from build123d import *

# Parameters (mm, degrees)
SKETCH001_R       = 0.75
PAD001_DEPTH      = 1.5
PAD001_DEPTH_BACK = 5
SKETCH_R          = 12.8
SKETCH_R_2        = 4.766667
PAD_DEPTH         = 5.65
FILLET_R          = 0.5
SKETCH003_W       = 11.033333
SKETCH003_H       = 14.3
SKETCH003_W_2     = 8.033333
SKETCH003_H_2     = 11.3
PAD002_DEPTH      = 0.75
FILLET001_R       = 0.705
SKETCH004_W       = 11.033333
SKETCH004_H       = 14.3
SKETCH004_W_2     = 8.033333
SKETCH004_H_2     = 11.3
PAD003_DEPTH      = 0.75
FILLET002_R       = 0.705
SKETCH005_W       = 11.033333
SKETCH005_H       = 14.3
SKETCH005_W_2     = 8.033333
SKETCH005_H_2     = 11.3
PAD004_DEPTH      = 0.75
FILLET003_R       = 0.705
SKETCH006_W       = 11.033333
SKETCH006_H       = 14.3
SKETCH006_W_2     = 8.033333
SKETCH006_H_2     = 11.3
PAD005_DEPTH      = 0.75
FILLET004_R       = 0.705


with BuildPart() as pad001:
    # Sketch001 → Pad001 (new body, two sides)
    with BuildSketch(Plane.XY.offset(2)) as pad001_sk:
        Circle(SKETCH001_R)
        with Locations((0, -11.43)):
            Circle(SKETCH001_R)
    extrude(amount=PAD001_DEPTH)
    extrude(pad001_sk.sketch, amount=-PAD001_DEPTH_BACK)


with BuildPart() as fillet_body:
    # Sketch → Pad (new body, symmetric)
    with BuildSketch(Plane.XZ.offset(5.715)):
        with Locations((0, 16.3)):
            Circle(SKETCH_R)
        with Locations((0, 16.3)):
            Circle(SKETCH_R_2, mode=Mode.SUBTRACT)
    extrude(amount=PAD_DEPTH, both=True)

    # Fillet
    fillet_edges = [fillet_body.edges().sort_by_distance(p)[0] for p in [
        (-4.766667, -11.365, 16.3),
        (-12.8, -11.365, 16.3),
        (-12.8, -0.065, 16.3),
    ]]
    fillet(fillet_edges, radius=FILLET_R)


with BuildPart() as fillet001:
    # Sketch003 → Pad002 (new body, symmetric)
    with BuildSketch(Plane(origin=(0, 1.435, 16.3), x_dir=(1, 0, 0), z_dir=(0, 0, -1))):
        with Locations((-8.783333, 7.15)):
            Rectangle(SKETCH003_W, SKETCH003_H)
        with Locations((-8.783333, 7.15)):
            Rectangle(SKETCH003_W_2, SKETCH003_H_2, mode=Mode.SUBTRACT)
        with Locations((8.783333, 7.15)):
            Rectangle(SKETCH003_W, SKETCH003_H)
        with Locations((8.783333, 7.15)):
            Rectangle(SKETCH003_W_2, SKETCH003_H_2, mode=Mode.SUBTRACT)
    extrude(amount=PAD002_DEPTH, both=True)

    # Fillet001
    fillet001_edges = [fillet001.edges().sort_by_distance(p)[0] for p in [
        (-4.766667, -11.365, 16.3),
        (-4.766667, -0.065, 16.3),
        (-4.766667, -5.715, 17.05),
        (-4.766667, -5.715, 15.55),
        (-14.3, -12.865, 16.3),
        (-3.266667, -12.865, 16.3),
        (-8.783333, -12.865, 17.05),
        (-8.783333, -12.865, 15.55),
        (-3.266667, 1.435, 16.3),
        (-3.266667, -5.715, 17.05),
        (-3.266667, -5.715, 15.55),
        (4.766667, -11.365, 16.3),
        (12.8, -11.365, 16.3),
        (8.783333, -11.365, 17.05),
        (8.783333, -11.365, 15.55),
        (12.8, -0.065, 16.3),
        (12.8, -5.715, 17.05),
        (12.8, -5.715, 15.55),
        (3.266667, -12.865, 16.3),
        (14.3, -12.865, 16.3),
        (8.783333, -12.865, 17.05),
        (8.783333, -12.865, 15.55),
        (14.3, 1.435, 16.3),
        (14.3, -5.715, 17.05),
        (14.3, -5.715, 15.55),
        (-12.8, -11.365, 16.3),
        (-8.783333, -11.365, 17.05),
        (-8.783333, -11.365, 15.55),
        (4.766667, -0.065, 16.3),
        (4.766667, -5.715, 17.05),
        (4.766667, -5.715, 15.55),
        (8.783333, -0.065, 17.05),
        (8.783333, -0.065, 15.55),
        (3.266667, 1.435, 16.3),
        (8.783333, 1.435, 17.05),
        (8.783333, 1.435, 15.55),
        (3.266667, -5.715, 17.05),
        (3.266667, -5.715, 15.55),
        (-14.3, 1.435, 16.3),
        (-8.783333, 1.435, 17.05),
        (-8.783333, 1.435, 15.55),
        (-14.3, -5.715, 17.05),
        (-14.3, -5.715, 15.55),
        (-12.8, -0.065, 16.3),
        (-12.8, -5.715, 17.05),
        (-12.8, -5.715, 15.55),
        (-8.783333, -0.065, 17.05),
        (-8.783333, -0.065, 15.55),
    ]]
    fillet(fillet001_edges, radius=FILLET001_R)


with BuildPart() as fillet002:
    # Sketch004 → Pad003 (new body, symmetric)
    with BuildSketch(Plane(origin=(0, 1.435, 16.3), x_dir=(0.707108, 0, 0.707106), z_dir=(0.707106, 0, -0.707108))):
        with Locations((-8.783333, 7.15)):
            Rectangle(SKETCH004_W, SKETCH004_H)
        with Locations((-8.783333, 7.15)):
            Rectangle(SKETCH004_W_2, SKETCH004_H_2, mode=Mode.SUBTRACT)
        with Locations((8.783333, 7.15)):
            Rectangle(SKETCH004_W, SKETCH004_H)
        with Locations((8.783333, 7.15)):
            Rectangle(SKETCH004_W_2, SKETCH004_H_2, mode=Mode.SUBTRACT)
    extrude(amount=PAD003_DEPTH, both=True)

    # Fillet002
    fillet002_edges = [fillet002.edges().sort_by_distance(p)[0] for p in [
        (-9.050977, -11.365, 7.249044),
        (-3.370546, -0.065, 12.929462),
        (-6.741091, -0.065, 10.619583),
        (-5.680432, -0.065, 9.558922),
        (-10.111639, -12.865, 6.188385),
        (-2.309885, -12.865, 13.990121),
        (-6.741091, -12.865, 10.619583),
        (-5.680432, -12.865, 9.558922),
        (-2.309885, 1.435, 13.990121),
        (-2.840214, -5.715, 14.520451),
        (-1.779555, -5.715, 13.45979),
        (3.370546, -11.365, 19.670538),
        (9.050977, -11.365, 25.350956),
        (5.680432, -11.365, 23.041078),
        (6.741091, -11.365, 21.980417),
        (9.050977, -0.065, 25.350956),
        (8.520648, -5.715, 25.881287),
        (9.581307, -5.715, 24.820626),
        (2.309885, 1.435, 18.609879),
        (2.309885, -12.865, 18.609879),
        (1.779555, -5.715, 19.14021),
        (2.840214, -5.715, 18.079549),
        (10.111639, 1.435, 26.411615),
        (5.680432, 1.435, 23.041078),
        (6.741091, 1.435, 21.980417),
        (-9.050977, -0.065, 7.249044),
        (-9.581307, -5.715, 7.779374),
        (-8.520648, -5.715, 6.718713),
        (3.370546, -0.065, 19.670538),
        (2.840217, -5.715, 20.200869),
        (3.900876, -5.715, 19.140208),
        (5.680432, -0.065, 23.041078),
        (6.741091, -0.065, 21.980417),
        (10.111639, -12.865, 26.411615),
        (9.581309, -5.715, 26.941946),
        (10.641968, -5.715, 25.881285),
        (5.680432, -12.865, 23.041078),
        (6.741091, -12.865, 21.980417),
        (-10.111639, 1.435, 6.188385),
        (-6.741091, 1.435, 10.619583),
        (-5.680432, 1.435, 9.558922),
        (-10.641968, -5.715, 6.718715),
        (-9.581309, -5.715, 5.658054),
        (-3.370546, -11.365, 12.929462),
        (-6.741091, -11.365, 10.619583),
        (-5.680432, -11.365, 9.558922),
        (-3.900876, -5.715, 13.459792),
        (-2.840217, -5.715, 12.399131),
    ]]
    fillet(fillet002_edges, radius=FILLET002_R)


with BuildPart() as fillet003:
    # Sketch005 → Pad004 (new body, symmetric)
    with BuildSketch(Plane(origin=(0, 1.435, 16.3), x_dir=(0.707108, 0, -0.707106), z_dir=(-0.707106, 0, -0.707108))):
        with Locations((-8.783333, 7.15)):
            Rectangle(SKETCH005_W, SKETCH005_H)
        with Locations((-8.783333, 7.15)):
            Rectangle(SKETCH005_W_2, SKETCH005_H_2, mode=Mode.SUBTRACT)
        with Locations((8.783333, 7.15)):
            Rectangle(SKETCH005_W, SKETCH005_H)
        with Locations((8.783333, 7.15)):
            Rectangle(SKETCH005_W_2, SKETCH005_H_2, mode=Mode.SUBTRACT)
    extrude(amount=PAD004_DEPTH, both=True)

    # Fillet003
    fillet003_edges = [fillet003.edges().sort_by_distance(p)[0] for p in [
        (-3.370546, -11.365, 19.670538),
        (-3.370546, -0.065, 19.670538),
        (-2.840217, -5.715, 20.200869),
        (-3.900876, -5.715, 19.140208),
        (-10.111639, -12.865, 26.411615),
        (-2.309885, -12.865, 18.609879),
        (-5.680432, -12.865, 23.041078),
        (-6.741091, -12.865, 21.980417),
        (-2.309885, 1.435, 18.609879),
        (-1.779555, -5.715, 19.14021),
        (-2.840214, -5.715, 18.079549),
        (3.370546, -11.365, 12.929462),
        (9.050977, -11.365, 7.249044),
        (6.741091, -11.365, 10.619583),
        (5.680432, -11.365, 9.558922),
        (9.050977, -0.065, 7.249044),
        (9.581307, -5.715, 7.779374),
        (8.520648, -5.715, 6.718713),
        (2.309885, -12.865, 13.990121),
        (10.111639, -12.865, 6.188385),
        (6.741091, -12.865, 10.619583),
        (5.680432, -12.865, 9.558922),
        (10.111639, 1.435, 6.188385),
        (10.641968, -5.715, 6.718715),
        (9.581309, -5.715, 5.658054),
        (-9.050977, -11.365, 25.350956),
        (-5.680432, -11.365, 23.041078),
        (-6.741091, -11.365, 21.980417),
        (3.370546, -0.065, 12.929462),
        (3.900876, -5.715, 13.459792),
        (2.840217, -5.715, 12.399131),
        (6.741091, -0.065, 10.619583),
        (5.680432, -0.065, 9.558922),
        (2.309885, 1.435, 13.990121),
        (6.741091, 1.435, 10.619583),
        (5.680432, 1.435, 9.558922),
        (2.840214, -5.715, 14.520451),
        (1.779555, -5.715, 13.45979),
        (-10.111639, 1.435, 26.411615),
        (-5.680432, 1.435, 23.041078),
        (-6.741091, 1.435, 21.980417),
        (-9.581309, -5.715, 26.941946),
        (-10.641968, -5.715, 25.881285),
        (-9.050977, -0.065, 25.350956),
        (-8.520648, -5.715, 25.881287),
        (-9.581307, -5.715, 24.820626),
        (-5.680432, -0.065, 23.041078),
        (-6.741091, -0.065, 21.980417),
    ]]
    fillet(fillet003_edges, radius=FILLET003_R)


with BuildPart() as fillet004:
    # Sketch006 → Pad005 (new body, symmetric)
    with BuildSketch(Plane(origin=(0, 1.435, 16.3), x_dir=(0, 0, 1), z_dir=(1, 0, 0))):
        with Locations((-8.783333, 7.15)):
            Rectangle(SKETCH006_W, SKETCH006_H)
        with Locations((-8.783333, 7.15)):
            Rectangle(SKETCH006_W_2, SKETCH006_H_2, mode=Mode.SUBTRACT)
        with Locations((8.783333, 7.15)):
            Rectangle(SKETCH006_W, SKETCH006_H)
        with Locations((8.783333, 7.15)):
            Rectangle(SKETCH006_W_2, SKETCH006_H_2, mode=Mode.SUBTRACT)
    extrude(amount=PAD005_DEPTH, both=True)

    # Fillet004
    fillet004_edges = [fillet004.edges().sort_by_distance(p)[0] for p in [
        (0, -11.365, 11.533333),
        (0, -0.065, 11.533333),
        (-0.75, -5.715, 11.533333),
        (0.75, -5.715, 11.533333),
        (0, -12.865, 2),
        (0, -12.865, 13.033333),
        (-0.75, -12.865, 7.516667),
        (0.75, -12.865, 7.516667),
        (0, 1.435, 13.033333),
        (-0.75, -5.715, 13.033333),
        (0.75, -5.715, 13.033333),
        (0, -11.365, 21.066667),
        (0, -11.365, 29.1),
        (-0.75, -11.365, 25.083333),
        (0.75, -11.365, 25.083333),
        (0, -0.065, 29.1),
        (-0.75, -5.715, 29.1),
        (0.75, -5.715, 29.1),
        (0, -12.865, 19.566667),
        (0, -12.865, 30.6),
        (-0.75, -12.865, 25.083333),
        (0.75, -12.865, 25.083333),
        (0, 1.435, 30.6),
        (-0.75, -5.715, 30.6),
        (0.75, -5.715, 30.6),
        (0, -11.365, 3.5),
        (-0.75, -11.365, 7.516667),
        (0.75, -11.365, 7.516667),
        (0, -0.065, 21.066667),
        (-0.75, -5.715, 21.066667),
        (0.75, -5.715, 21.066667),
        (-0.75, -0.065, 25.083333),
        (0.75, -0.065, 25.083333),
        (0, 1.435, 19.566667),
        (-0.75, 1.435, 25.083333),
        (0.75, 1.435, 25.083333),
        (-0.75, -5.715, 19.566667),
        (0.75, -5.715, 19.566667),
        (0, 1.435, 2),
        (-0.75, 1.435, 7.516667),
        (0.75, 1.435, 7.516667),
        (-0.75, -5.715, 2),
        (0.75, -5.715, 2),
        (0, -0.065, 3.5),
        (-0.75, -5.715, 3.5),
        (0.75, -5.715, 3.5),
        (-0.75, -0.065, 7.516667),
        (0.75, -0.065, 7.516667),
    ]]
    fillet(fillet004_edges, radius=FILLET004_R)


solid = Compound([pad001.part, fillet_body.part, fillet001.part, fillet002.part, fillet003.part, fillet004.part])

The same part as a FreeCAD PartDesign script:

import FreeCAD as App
import Part
import Sketcher


def edges_at(feature, points):
    """Names of the edges that pass closest to the given points."""
    edges = feature.Shape.Edges
    near = lambda p: min(range(len(edges)), key=lambda i: edges[i].distToShape(Part.Vertex(*p))[0])
    return sorted({f"Edge{near(p) + 1}" for p in points})


def add_polygon(sketch, points):
    """Adds a closed chain of lines whose ends are joined by coincident constraints."""
    first, n = sketch.GeometryCount, len(points)
    for a, b in zip(points, points[1:] + points[:1]):
        sketch.addGeometry(Part.LineSegment(App.Vector(*a, 0), App.Vector(*b, 0)), False)
    for i in range(n):
        sketch.addConstraint(Sketcher.Constraint("Coincident", first + i, 2, first + (i + 1) % n, 1))

doc = App.newDocument("Part")
body = doc.addObject("PartDesign::Body", "Body")
body.AllowCompound = True

sketch1 = doc.addObject("Sketcher::SketchObject", "Sketch")
body.addObject(sketch1)
sketch1.AttachmentSupport = (doc.XY_Plane, [""])
sketch1.MapMode = "FlatFace"
sketch1.AttachmentOffset = App.Placement(App.Vector(0, 0, 2), App.Rotation())
sketch1.addGeometry(Part.Circle(App.Vector(0, 0, 0), App.Vector(0, 0, 1), 0.8), False)
sketch1.addGeometry(Part.Circle(App.Vector(0, -11.4, 0), App.Vector(0, 0, 1), 0.8), False)
sketch1.addConstraint(Sketcher.Constraint("Coincident", 0, 3, -1, 1))
sketch1.addConstraint(Sketcher.Constraint("Equal", 0, 1))
sketch1.addConstraint(Sketcher.Constraint("PointOnObject", 1, 3, -2))
sketch1.addConstraint(Sketcher.Constraint("Diameter", 0, 1.5))
sketch1.addConstraint(Sketcher.Constraint("DistanceY", 1, 3, -1, 1, 11.43))
pad1 = doc.addObject("PartDesign::Pad", "Pad")
body.addObject(pad1)
pad1.Profile = sketch1
pad1.Type = "TwoLengths"
pad1.Length = 1.5
pad1.Length2 = 5
body2 = doc.addObject("PartDesign::Body", "Body001")

sketch2 = doc.addObject("Sketcher::SketchObject", "Sketch001")
body2.addObject(sketch2)
sketch2.AttachmentSupport = (doc.getObject("XZ_Plane001"), [""])
sketch2.MapMode = "FlatFace"
sketch2.AttachmentOffset = App.Placement(App.Vector(0, 0, 5.715), App.Rotation())
sketch2.addGeometry(Part.Circle(App.Vector(0, 16.3, 0), App.Vector(0, 0, 1), 12.8), False)
sketch2.addGeometry(Part.Circle(App.Vector(0, 16.3, 0), App.Vector(0, 0, 1), 4.8), False)
sketch2.addConstraint(Sketcher.Constraint("Coincident", 1, 3, 0, 3))
sketch2.addConstraint(Sketcher.Constraint("PointOnObject", 0, 3, -2))
sketch2.addConstraint(Sketcher.Constraint("Diameter", 0, 25.6))
sketch2.addConstraint(Sketcher.Constraint("DistanceY", -1, 1, 0, 3, 16.3))
sketch2.addConstraint(Sketcher.Constraint("Diameter", 1, 9.533334))
pad2 = doc.addObject("PartDesign::Pad", "Pad001")
body2.addObject(pad2)
pad2.Profile = sketch2
pad2.Length = 11.3
pad2.Midplane = True
doc.recompute()

fillet = doc.addObject("PartDesign::Fillet", "Fillet")
body2.addObject(fillet)
fillet.Base = (pad2, edges_at(pad2, [(-4.767, -11.365, 16.3), (-12.8, -11.365, 16.3), (-12.8, -0.065, 16.3)]))
fillet.Radius = 0.5
body3 = doc.addObject("PartDesign::Body", "Body002")
body3.AllowCompound = True

sketch3 = doc.addObject("Sketcher::SketchObject", "Sketch002")
body3.addObject(sketch3)
sketch3.AttachmentSupport = (doc.getObject("XY_Plane002"), [""])
sketch3.MapMode = "FlatFace"
sketch3.AttachmentOffset = App.Placement(App.Vector(0, 0, 16.3), App.Rotation())
add_polygon(sketch3, [(-14, -13), (-14, 1), (-3, 1), (-3, -13)])
add_polygon(sketch3, [(-5, 0), (-13, 0), (-13, -11), (-5, -11)])
add_polygon(sketch3, [(3, -13), (3, 1), (14, 1), (14, -13)])
add_polygon(sketch3, [(13, 0), (5, 0), (5, -11), (13, -11)])
sketch3.addConstraint(Sketcher.Constraint("Vertical", 0))
sketch3.addConstraint(Sketcher.Constraint("Horizontal", 1))
sketch3.addConstraint(Sketcher.Constraint("Vertical", 2))
sketch3.addConstraint(Sketcher.Constraint("Horizontal", 3))
sketch3.addConstraint(Sketcher.Constraint("Horizontal", 4))
sketch3.addConstraint(Sketcher.Constraint("Vertical", 5))
sketch3.addConstraint(Sketcher.Constraint("Horizontal", 6))
sketch3.addConstraint(Sketcher.Constraint("Vertical", 7))
sketch3.addConstraint(Sketcher.Constraint("Vertical", 8))
sketch3.addConstraint(Sketcher.Constraint("Horizontal", 9))
sketch3.addConstraint(Sketcher.Constraint("Vertical", 10))
sketch3.addConstraint(Sketcher.Constraint("Horizontal", 11))
sketch3.addConstraint(Sketcher.Constraint("Horizontal", 12))
sketch3.addConstraint(Sketcher.Constraint("Vertical", 13))
sketch3.addConstraint(Sketcher.Constraint("Horizontal", 14))
sketch3.addConstraint(Sketcher.Constraint("Vertical", 15))
sketch3.addConstraint(Sketcher.Constraint("Symmetric", 1, 2, 8, 2, -2))
sketch3.addConstraint(Sketcher.Constraint("Symmetric", 3, 2, 10, 2, -2))
sketch3.addConstraint(Sketcher.Constraint("Symmetric", 7, 2, 12, 2, -2))
sketch3.addConstraint(Sketcher.Constraint("Symmetric", 5, 2, 14, 2, -2))
sketch3.addConstraint(Sketcher.Constraint("DistanceY", 0, 1, 0, 2, 14.3))
sketch3.addConstraint(Sketcher.Constraint("DistanceY", 5, 2, 5, 1, 11.3))
sketch3.addConstraint(Sketcher.Constraint("DistanceX", 0, 2, -1, 1, 14.3))
sketch3.addConstraint(Sketcher.Constraint("DistanceX", 4, 2, -1, 1, 12.8))
sketch3.addConstraint(Sketcher.Constraint("DistanceY", 4, 2, 0, 2, 1.5))
sketch3.addConstraint(Sketcher.Constraint("DistanceX", 6, 2, 2, 2, 1.5))
sketch3.addConstraint(Sketcher.Constraint("DistanceY", -1, 1, 0, 2, 1.435))
sketch3.addConstraint(Sketcher.Constraint("DistanceX", 1, 1, 1, 2, 11.033333))
pad3 = doc.addObject("PartDesign::Pad", "Pad002")
body3.addObject(pad3)
pad3.Profile = sketch3
pad3.Length = 1.5
pad3.Midplane = True
doc.recompute()

fillet2 = doc.addObject("PartDesign::Fillet", "Fillet001")
body3.addObject(fillet2)
fillet2.Base = (pad3, ["Edge1"])
fillet2.UseAllEdges = True
fillet2.Radius = 0.705
body4 = doc.addObject("PartDesign::Body", "Body003")
body4.AllowCompound = True

sketch4 = doc.addObject("Sketcher::SketchObject", "Sketch003")
body4.addObject(sketch4)
sketch4.Placement = App.Placement(App.Vector(0, 1.435, 16.3), App.Rotation(App.Vector(0.707107781, 0, 0.707105781), App.Vector(0, -0.999999999, 0), App.Vector(0.707105781, 0, -0.707107781), "ZXY"))
add_polygon(sketch4, [(-14, 14), (-14, 0), (-3, 0), (-3, 14)])
add_polygon(sketch4, [(-5, 1), (-13, 1), (-13, 13), (-5, 13)])
add_polygon(sketch4, [(3, 14), (3, 0), (14, 0), (14, 14)])
add_polygon(sketch4, [(13, 1), (5, 1), (5, 13), (13, 13)])
sketch4.addConstraint(Sketcher.Constraint("Vertical", 0))
sketch4.addConstraint(Sketcher.Constraint("Horizontal", 1))
sketch4.addConstraint(Sketcher.Constraint("Vertical", 2))
sketch4.addConstraint(Sketcher.Constraint("Horizontal", 3))
sketch4.addConstraint(Sketcher.Constraint("Horizontal", 4))
sketch4.addConstraint(Sketcher.Constraint("Vertical", 5))
sketch4.addConstraint(Sketcher.Constraint("Horizontal", 6))
sketch4.addConstraint(Sketcher.Constraint("Vertical", 7))
sketch4.addConstraint(Sketcher.Constraint("Vertical", 8))
sketch4.addConstraint(Sketcher.Constraint("Horizontal", 9))
sketch4.addConstraint(Sketcher.Constraint("Vertical", 10))
sketch4.addConstraint(Sketcher.Constraint("Horizontal", 11))
sketch4.addConstraint(Sketcher.Constraint("Horizontal", 12))
sketch4.addConstraint(Sketcher.Constraint("Vertical", 13))
sketch4.addConstraint(Sketcher.Constraint("Horizontal", 14))
sketch4.addConstraint(Sketcher.Constraint("Vertical", 15))
sketch4.addConstraint(Sketcher.Constraint("Symmetric", 1, 2, 8, 2, -1, 1))
sketch4.addConstraint(Sketcher.Constraint("Symmetric", 0, 2, 9, 2, -2))
sketch4.addConstraint(Sketcher.Constraint("Symmetric", 7, 2, 12, 2, -2))
sketch4.addConstraint(Sketcher.Constraint("Symmetric", 5, 2, 14, 2, -2))
sketch4.addConstraint(Sketcher.Constraint("Horizontal", 3, 2, 10, 2))
sketch4.addConstraint(Sketcher.Constraint("DistanceY", 0, 2, 0, 1, 14.3))
sketch4.addConstraint(Sketcher.Constraint("DistanceY", 5, 1, 5, 2, 11.3))
sketch4.addConstraint(Sketcher.Constraint("DistanceX", 0, 2, -1, 1, 14.299999))
sketch4.addConstraint(Sketcher.Constraint("DistanceX", 4, 2, -1, 1, 12.799999))
sketch4.addConstraint(Sketcher.Constraint("DistanceY", -1, 1, 4, 2, 1.5))
sketch4.addConstraint(Sketcher.Constraint("DistanceX", 6, 2, 2, 2, 1.5))
sketch4.addConstraint(Sketcher.Constraint("DistanceX", 1, 1, 1, 2, 11.033333))
pad4 = doc.addObject("PartDesign::Pad", "Pad003")
body4.addObject(pad4)
pad4.Profile = sketch4
pad4.Length = 1.5
pad4.Midplane = True
doc.recompute()

fillet3 = doc.addObject("PartDesign::Fillet", "Fillet002")
body4.addObject(fillet3)
fillet3.Base = (pad4, ["Edge1"])
fillet3.UseAllEdges = True
fillet3.Radius = 0.705
body5 = doc.addObject("PartDesign::Body", "Body004")
body5.AllowCompound = True

sketch5 = doc.addObject("Sketcher::SketchObject", "Sketch004")
body5.addObject(sketch5)
sketch5.Placement = App.Placement(App.Vector(0, 1.435, 16.3), App.Rotation(App.Vector(0.707107781, 0, -0.707105781), App.Vector(0, -0.999999999, 0), App.Vector(-0.707105781, 0, -0.707107781), "ZXY"))
add_polygon(sketch5, [(-14, 14), (-14, 0), (-3, 0), (-3, 14)])
add_polygon(sketch5, [(-5, 1), (-13, 1), (-13, 13), (-5, 13)])
add_polygon(sketch5, [(3, 14), (3, 0), (14, 0), (14, 14)])
add_polygon(sketch5, [(13, 1), (5, 1), (5, 13), (13, 13)])
sketch5.addConstraint(Sketcher.Constraint("Vertical", 0))
sketch5.addConstraint(Sketcher.Constraint("Horizontal", 1))
sketch5.addConstraint(Sketcher.Constraint("Vertical", 2))
sketch5.addConstraint(Sketcher.Constraint("Horizontal", 3))
sketch5.addConstraint(Sketcher.Constraint("Horizontal", 4))
sketch5.addConstraint(Sketcher.Constraint("Vertical", 5))
sketch5.addConstraint(Sketcher.Constraint("Horizontal", 6))
sketch5.addConstraint(Sketcher.Constraint("Vertical", 7))
sketch5.addConstraint(Sketcher.Constraint("Vertical", 8))
sketch5.addConstraint(Sketcher.Constraint("Horizontal", 9))
sketch5.addConstraint(Sketcher.Constraint("Vertical", 10))
sketch5.addConstraint(Sketcher.Constraint("Horizontal", 11))
sketch5.addConstraint(Sketcher.Constraint("Horizontal", 12))
sketch5.addConstraint(Sketcher.Constraint("Vertical", 13))
sketch5.addConstraint(Sketcher.Constraint("Horizontal", 14))
sketch5.addConstraint(Sketcher.Constraint("Vertical", 15))
sketch5.addConstraint(Sketcher.Constraint("Symmetric", 1, 2, 8, 2, -1, 1))
sketch5.addConstraint(Sketcher.Constraint("Symmetric", 0, 2, 9, 2, -2))
sketch5.addConstraint(Sketcher.Constraint("Symmetric", 7, 2, 12, 2, -2))
sketch5.addConstraint(Sketcher.Constraint("Symmetric", 5, 2, 14, 2, -2))
sketch5.addConstraint(Sketcher.Constraint("Horizontal", 3, 2, 10, 2))
sketch5.addConstraint(Sketcher.Constraint("DistanceY", 0, 2, 0, 1, 14.3))
sketch5.addConstraint(Sketcher.Constraint("DistanceY", 5, 1, 5, 2, 11.3))
sketch5.addConstraint(Sketcher.Constraint("DistanceX", 0, 2, -1, 1, 14.299999))
sketch5.addConstraint(Sketcher.Constraint("DistanceX", 4, 2, -1, 1, 12.799999))
sketch5.addConstraint(Sketcher.Constraint("DistanceY", -1, 1, 4, 2, 1.5))
sketch5.addConstraint(Sketcher.Constraint("DistanceX", 6, 2, 2, 2, 1.5))
sketch5.addConstraint(Sketcher.Constraint("DistanceX", 1, 1, 1, 2, 11.033333))
pad5 = doc.addObject("PartDesign::Pad", "Pad004")
body5.addObject(pad5)
pad5.Profile = sketch5
pad5.Length = 1.5
pad5.Midplane = True
doc.recompute()

fillet4 = doc.addObject("PartDesign::Fillet", "Fillet003")
body5.addObject(fillet4)
fillet4.Base = (pad5, ["Edge1"])
fillet4.UseAllEdges = True
fillet4.Radius = 0.705
body6 = doc.addObject("PartDesign::Body", "Body005")
body6.AllowCompound = True

sketch6 = doc.addObject("Sketcher::SketchObject", "Sketch005")
body6.addObject(sketch6)
sketch6.AttachmentSupport = (doc.getObject("YZ_Plane005"), [""])
sketch6.MapMode = "FlatFace"
add_polygon(sketch6, [(-13, 2), (1, 2), (1, 13), (-13, 13)])
add_polygon(sketch6, [(0, 12), (0, 4), (-11, 4), (-11, 12)])
add_polygon(sketch6, [(-13, 20), (1, 20), (1, 31), (-13, 31)])
add_polygon(sketch6, [(0, 29), (0, 21), (-11, 21), (-11, 29)])
sketch6.addConstraint(Sketcher.Constraint("Horizontal", 0))
sketch6.addConstraint(Sketcher.Constraint("Vertical", 1))
sketch6.addConstraint(Sketcher.Constraint("Horizontal", 2))
sketch6.addConstraint(Sketcher.Constraint("Vertical", 3))
sketch6.addConstraint(Sketcher.Constraint("Vertical", 4))
sketch6.addConstraint(Sketcher.Constraint("Horizontal", 5))
sketch6.addConstraint(Sketcher.Constraint("Vertical", 6))
sketch6.addConstraint(Sketcher.Constraint("Horizontal", 7))
sketch6.addConstraint(Sketcher.Constraint("Horizontal", 8))
sketch6.addConstraint(Sketcher.Constraint("Vertical", 9))
sketch6.addConstraint(Sketcher.Constraint("Horizontal", 10))
sketch6.addConstraint(Sketcher.Constraint("Vertical", 11))
sketch6.addConstraint(Sketcher.Constraint("Vertical", 12))
sketch6.addConstraint(Sketcher.Constraint("Horizontal", 13))
sketch6.addConstraint(Sketcher.Constraint("Vertical", 14))
sketch6.addConstraint(Sketcher.Constraint("Horizontal", 15))
sketch6.addConstraint(Sketcher.Constraint("Vertical", 1, 2, 8, 2))
sketch6.addConstraint(Sketcher.Constraint("Vertical", 3, 2, 10, 2))
sketch6.addConstraint(Sketcher.Constraint("Vertical", 7, 2, 12, 2))
sketch6.addConstraint(Sketcher.Constraint("Vertical", 6, 2, 13, 2))
sketch6.addConstraint(Sketcher.Constraint("Equal", 3, 9))
sketch6.addConstraint(Sketcher.Constraint("Equal", 6, 12))
sketch6.addConstraint(Sketcher.Constraint("DistanceX", 0, 1, 0, 2, 14.3))
sketch6.addConstraint(Sketcher.Constraint("DistanceX", 5, 2, 5, 1, 11.3))
sketch6.addConstraint(Sketcher.Constraint("DistanceY", -1, 1, 0, 2, 2.000001))
sketch6.addConstraint(Sketcher.Constraint("DistanceY", -1, 1, 4, 2, 3.500001))
sketch6.addConstraint(Sketcher.Constraint("DistanceY", -1, 1, 9, 2, 30.599999))
sketch6.addConstraint(Sketcher.Constraint("DistanceY", -1, 1, 14, 2, 29.099999))
sketch6.addConstraint(Sketcher.Constraint("DistanceX", 4, 2, 0, 2, 1.5))
sketch6.addConstraint(Sketcher.Constraint("DistanceY", 6, 2, 2, 2, 1.5))
sketch6.addConstraint(Sketcher.Constraint("DistanceX", -1, 1, 0, 2, 1.435))
sketch6.addConstraint(Sketcher.Constraint("DistanceY", 1, 1, 1, 2, 11.033333))
pad6 = doc.addObject("PartDesign::Pad", "Pad005")
body6.addObject(pad6)
pad6.Profile = sketch6
pad6.Length = 1.5
pad6.Midplane = True
doc.recompute()

fillet5 = doc.addObject("PartDesign::Fillet", "Fillet004")
body6.addObject(fillet5)
fillet5.Base = (pad6, ["Edge1"])
fillet5.UseAllEdges = True
fillet5.Radius = 0.705

doc.recompute()
